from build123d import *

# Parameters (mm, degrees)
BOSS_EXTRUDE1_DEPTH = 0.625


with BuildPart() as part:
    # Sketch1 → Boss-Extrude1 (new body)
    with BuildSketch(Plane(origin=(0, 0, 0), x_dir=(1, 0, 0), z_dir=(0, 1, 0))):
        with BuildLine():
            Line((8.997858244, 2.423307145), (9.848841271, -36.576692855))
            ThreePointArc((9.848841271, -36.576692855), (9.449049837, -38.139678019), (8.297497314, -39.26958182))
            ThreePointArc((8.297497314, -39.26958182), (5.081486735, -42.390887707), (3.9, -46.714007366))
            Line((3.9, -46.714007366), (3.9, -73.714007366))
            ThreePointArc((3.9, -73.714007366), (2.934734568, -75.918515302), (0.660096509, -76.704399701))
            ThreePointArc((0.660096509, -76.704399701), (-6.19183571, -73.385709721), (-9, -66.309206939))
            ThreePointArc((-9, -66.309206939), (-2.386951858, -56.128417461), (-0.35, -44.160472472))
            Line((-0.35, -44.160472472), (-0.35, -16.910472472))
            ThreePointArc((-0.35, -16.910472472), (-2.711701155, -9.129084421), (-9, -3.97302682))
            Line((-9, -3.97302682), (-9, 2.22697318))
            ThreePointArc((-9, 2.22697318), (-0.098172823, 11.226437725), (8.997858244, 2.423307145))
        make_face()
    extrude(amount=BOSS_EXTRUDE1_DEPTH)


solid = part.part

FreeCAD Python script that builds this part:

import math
import FreeCAD as App
import Part
import Sketcher
Q = App.Units.Quantity

doc = App.newDocument("Part")
params = doc.addObject("Spreadsheet::Sheet", "Params")
for row, (alias, value) in enumerate([
    ("sketch1_radius", "9 mm"),
    ("sketch1_radius2", "14 mm"),
    ("sketch1_radius3", "30 mm"),
    ("sketch1_radius4", "3 mm"),
    ("sketch1_radius5", "10.5 mm"),
    ("pad1_length", "0.625 mm"),
], start=1):
    params.set(f"A{row}", alias)
    params.set(f"B{row}", "=" + value)
    params.setAlias(f"B{row}", alias)

body = doc.addObject("PartDesign::Body", "Body")

# Sketch on XZ plane
sketch1 = body.newObject("Sketcher::SketchObject", "Sketch")
sketch1.AttachmentSupport = (doc.getObject("XZ_Plane"), [""])
sketch1.MapMode = "FlatFace"
sketch1.addGeometry(Part.LineSegment(App.Vector(9.8, 36.6, 0), App.Vector(9, -2.4, 0)), False)
sketch1.addGeometry(Part.ArcOfCircle(Part.Circle(App.Vector(0, -2.2, 0), App.Vector(0, 0, 1), 9), math.radians(180), math.radians(359)), False)
sketch1.addGeometry(Part.LineSegment(App.Vector(-9, -2.2, 0), App.Vector(-9, 4, 0)), False)
sketch1.addGeometry(Part.ArcOfCircle(Part.Circle(App.Vector(-14.3, 16.9, 0), App.Vector(0, 0, 1), 14), math.radians(-68), math.radians(0)), False)
sketch1.addGeometry(Part.LineSegment(App.Vector(-0.3, 16.9, 0), App.Vector(-0.3, 44.2, 0)), False)
sketch1.addGeometry(Part.ArcOfCircle(Part.Circle(App.Vector(-30.3, 45.2, 0), App.Vector(0, 0, 1), 30), math.radians(-2), math.radians(45)), False)
sketch1.addGeometry(Part.ArcOfCircle(Part.Circle(App.Vector(1.5, 66.2, 0), App.Vector(0, 0, 1), 10.5), math.radians(95), math.radians(180)), False)
sketch1.addGeometry(Part.ArcOfCircle(Part.Circle(App.Vector(0.9, 73.7, 0), App.Vector(0, 0, 1), 3), math.radians(0), math.radians(95)), False)
sketch1.addGeometry(Part.LineSegment(App.Vector(3.9, 73.7, 0), App.Vector(3.9, 46.7, 0)), False)
sketch1.addGeometry(Part.ArcOfCircle(Part.Circle(App.Vector(12.4, 46.7, 0), App.Vector(0, 0, 1), 8.5), math.radians(-180), math.radians(-119)), False)
sketch1.addGeometry(Part.ArcOfCircle(Part.Circle(App.Vector(6.8, 36.6, 0), App.Vector(0, 0, 1), 3), math.radians(-1), math.radians(61)), False)
sketch1.addConstraint(Sketcher.Constraint("Tangent", 0, 2, 1, 2))
sketch1.addConstraint(Sketcher.Constraint("Tangent", 1, 1, 2, 1))
sketch1.addConstraint(Sketcher.Constraint("Coincident", 2, 2, 3, 1))
sketch1.addConstraint(Sketcher.Constraint("Tangent", 3, 2, 4, 1))
sketch1.addConstraint(Sketcher.Constraint("Coincident", 4, 2, 5, 1))
sketch1.addConstraint(Sketcher.Constraint("Coincident", 5, 2, 6, 2))
sketch1.addConstraint(Sketcher.Constraint("Tangent", 6, 1, 7, 2))
sketch1.addConstraint(Sketcher.Constraint("Tangent", 7, 1, 8, 1))
sketch1.addConstraint(Sketcher.Constraint("Tangent", 8, 2, 9, 1))
sketch1.addConstraint(Sketcher.Constraint("Tangent", 9, 2, 10, 2))
sketch1.addConstraint(Sketcher.Constraint("Tangent", 10, 1, 0, 1))
sketch1.addConstraint(Sketcher.Constraint("Vertical", 2))
sketch1.addConstraint(Sketcher.Constraint("Vertical", 4))
sketch1.addConstraint(Sketcher.Constraint("Vertical", 8))
sketch1.addConstraint(Sketcher.Constraint("Equal", 7, 10))
sketch1.addConstraint(Sketcher.Constraint("PointOnObject", 1, 3, -2))
sketch1.addConstraint(Sketcher.Constraint("Vertical", 2, 2, 5, 2))
sketch1.addConstraint(Sketcher.Constraint("Radius", 1, Q("9 mm")))
sketch1.addConstraint(Sketcher.Constraint("Radius", 3, Q("14 mm")))
sketch1.addConstraint(Sketcher.Constraint("Radius", 5, Q("30 mm")))
sketch1.addConstraint(Sketcher.Constraint("Radius", 7, Q("3 mm")))
sketch1.addConstraint(Sketcher.Constraint("Radius", 6, Q("10.5 mm")))
sketch1.addConstraint(Sketcher.Constraint("Radius", 9, Q("8.5 mm")))
sketch1.addConstraint(Sketcher.Constraint("DistanceY", 8, 2, 8, 1, Q("27 mm")))
sketch1.addConstraint(Sketcher.Constraint("DistanceY", 2, 1, 2, 2, Q("6.2 mm")))
sketch1.addConstraint(Sketcher.Constraint("DistanceY", 4, 1, 4, 2, Q("27.25 mm")))
sketch1.addConstraint(Sketcher.Constraint("DistanceX", -1, 1, 7, 3, Q("0.9 mm")))
sketch1.addConstraint(Sketcher.Constraint("Angle", 0, Q("-91.25 deg")))
sketch1.addConstraint(Sketcher.Constraint("DistanceX", 3, 3, -1, 1, Q("14.35 mm")))
sketch1.addConstraint(Sketcher.Constraint("DistanceY", 1, 3, 6, 3, Q("68.465 mm")))
sketch1.addConstraint(Sketcher.Constraint("DistanceY", -1, 1, 6, 1, Q("76.7044 mm")))
sketch1.addConstraint(Sketcher.Constraint("DistanceY", 1, 3, 5, 3, Q("47.441899 mm")))
sketch1.setExpression("Constraints[17]", "Params.sketch1_radius")
sketch1.setExpression("Constraints[18]", "Params.sketch1_radius2")
sketch1.setExpression("Constraints[19]", "Params.sketch1_radius3")
sketch1.setExpression("Constraints[20]", "Params.sketch1_radius4")
sketch1.setExpression("Constraints[21]", "Params.sketch1_radius5")
pad1 = body.newObject("PartDesign::Pad", "Pad")
pad1.Profile = sketch1
pad1.setExpression("Length", "Params.pad1_length")
pad1.Reversed = True

doc.recompute()
